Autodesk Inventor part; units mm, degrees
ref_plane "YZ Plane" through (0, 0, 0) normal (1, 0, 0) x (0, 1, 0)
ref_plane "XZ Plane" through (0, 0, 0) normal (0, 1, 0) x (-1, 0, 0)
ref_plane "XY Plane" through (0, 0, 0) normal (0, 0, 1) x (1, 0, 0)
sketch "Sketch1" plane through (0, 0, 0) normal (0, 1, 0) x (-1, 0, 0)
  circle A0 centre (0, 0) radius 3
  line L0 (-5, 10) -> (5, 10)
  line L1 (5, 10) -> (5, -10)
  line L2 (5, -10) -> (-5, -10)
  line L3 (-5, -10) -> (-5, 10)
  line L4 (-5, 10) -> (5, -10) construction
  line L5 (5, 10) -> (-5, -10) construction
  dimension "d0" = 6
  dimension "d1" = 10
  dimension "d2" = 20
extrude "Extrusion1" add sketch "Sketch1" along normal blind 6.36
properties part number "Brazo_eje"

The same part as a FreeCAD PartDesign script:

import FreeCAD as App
import Part
import Sketcher

V = App.Vector
Q = App.Units.Quantity


def add_polygon(sketch, points):
    """Adds a closed chain of lines whose ends are joined by coincident constraints."""
    first, n = sketch.GeometryCount, len(points)
    for a, b in zip(points, points[1:] + points[:1]):
        sketch.addGeometry(Part.LineSegment(App.Vector(*a, 0), App.Vector(*b, 0)), False)
    for i in range(n):
        sketch.addConstraint(Sketcher.Constraint("Coincident", first + i, 2, first + (i + 1) % n, 1))

doc = App.newDocument("Part")
body = doc.addObject("PartDesign::Body", "Body")

sketch1 = body.newObject("Sketcher::SketchObject", "Sketch")
sketch1.AttachmentSupport = (doc.getObject("XZ_Plane"), [""])
sketch1.MapMode = "FlatFace"
add_polygon(sketch1, [(-5, 10), (5, 10), (5, -10), (-5, -10)])
sketch1.addGeometry(Part.Circle(V(0, 0, 0), V(0, 0, 1), 3), False)
sketch1.addConstraint([
    Sketcher.Constraint("Horizontal", 0),
    Sketcher.Constraint("Vertical", 1),
    Sketcher.Constraint("Horizontal", 2),
    Sketcher.Constraint("Vertical", 3),
    Sketcher.Constraint("Coincident", 4, 3, -1, 1),
    Sketcher.Constraint("Symmetric", 0, 2, 2, 2, -1, 1),
    Sketcher.Constraint("Diameter", 4, Q("6 mm")),
    Sketcher.Constraint("DistanceX", 0, 1, 0, 2, Q("10 mm")),
    Sketcher.Constraint("DistanceY", 1, 2, 1, 1, Q("20 mm")),
])
pad1 = body.newObject("PartDesign::Pad", "Pad")
pad1.Profile = sketch1
pad1.Length = 6.36
pad1.Reversed = True

doc.recompute()
